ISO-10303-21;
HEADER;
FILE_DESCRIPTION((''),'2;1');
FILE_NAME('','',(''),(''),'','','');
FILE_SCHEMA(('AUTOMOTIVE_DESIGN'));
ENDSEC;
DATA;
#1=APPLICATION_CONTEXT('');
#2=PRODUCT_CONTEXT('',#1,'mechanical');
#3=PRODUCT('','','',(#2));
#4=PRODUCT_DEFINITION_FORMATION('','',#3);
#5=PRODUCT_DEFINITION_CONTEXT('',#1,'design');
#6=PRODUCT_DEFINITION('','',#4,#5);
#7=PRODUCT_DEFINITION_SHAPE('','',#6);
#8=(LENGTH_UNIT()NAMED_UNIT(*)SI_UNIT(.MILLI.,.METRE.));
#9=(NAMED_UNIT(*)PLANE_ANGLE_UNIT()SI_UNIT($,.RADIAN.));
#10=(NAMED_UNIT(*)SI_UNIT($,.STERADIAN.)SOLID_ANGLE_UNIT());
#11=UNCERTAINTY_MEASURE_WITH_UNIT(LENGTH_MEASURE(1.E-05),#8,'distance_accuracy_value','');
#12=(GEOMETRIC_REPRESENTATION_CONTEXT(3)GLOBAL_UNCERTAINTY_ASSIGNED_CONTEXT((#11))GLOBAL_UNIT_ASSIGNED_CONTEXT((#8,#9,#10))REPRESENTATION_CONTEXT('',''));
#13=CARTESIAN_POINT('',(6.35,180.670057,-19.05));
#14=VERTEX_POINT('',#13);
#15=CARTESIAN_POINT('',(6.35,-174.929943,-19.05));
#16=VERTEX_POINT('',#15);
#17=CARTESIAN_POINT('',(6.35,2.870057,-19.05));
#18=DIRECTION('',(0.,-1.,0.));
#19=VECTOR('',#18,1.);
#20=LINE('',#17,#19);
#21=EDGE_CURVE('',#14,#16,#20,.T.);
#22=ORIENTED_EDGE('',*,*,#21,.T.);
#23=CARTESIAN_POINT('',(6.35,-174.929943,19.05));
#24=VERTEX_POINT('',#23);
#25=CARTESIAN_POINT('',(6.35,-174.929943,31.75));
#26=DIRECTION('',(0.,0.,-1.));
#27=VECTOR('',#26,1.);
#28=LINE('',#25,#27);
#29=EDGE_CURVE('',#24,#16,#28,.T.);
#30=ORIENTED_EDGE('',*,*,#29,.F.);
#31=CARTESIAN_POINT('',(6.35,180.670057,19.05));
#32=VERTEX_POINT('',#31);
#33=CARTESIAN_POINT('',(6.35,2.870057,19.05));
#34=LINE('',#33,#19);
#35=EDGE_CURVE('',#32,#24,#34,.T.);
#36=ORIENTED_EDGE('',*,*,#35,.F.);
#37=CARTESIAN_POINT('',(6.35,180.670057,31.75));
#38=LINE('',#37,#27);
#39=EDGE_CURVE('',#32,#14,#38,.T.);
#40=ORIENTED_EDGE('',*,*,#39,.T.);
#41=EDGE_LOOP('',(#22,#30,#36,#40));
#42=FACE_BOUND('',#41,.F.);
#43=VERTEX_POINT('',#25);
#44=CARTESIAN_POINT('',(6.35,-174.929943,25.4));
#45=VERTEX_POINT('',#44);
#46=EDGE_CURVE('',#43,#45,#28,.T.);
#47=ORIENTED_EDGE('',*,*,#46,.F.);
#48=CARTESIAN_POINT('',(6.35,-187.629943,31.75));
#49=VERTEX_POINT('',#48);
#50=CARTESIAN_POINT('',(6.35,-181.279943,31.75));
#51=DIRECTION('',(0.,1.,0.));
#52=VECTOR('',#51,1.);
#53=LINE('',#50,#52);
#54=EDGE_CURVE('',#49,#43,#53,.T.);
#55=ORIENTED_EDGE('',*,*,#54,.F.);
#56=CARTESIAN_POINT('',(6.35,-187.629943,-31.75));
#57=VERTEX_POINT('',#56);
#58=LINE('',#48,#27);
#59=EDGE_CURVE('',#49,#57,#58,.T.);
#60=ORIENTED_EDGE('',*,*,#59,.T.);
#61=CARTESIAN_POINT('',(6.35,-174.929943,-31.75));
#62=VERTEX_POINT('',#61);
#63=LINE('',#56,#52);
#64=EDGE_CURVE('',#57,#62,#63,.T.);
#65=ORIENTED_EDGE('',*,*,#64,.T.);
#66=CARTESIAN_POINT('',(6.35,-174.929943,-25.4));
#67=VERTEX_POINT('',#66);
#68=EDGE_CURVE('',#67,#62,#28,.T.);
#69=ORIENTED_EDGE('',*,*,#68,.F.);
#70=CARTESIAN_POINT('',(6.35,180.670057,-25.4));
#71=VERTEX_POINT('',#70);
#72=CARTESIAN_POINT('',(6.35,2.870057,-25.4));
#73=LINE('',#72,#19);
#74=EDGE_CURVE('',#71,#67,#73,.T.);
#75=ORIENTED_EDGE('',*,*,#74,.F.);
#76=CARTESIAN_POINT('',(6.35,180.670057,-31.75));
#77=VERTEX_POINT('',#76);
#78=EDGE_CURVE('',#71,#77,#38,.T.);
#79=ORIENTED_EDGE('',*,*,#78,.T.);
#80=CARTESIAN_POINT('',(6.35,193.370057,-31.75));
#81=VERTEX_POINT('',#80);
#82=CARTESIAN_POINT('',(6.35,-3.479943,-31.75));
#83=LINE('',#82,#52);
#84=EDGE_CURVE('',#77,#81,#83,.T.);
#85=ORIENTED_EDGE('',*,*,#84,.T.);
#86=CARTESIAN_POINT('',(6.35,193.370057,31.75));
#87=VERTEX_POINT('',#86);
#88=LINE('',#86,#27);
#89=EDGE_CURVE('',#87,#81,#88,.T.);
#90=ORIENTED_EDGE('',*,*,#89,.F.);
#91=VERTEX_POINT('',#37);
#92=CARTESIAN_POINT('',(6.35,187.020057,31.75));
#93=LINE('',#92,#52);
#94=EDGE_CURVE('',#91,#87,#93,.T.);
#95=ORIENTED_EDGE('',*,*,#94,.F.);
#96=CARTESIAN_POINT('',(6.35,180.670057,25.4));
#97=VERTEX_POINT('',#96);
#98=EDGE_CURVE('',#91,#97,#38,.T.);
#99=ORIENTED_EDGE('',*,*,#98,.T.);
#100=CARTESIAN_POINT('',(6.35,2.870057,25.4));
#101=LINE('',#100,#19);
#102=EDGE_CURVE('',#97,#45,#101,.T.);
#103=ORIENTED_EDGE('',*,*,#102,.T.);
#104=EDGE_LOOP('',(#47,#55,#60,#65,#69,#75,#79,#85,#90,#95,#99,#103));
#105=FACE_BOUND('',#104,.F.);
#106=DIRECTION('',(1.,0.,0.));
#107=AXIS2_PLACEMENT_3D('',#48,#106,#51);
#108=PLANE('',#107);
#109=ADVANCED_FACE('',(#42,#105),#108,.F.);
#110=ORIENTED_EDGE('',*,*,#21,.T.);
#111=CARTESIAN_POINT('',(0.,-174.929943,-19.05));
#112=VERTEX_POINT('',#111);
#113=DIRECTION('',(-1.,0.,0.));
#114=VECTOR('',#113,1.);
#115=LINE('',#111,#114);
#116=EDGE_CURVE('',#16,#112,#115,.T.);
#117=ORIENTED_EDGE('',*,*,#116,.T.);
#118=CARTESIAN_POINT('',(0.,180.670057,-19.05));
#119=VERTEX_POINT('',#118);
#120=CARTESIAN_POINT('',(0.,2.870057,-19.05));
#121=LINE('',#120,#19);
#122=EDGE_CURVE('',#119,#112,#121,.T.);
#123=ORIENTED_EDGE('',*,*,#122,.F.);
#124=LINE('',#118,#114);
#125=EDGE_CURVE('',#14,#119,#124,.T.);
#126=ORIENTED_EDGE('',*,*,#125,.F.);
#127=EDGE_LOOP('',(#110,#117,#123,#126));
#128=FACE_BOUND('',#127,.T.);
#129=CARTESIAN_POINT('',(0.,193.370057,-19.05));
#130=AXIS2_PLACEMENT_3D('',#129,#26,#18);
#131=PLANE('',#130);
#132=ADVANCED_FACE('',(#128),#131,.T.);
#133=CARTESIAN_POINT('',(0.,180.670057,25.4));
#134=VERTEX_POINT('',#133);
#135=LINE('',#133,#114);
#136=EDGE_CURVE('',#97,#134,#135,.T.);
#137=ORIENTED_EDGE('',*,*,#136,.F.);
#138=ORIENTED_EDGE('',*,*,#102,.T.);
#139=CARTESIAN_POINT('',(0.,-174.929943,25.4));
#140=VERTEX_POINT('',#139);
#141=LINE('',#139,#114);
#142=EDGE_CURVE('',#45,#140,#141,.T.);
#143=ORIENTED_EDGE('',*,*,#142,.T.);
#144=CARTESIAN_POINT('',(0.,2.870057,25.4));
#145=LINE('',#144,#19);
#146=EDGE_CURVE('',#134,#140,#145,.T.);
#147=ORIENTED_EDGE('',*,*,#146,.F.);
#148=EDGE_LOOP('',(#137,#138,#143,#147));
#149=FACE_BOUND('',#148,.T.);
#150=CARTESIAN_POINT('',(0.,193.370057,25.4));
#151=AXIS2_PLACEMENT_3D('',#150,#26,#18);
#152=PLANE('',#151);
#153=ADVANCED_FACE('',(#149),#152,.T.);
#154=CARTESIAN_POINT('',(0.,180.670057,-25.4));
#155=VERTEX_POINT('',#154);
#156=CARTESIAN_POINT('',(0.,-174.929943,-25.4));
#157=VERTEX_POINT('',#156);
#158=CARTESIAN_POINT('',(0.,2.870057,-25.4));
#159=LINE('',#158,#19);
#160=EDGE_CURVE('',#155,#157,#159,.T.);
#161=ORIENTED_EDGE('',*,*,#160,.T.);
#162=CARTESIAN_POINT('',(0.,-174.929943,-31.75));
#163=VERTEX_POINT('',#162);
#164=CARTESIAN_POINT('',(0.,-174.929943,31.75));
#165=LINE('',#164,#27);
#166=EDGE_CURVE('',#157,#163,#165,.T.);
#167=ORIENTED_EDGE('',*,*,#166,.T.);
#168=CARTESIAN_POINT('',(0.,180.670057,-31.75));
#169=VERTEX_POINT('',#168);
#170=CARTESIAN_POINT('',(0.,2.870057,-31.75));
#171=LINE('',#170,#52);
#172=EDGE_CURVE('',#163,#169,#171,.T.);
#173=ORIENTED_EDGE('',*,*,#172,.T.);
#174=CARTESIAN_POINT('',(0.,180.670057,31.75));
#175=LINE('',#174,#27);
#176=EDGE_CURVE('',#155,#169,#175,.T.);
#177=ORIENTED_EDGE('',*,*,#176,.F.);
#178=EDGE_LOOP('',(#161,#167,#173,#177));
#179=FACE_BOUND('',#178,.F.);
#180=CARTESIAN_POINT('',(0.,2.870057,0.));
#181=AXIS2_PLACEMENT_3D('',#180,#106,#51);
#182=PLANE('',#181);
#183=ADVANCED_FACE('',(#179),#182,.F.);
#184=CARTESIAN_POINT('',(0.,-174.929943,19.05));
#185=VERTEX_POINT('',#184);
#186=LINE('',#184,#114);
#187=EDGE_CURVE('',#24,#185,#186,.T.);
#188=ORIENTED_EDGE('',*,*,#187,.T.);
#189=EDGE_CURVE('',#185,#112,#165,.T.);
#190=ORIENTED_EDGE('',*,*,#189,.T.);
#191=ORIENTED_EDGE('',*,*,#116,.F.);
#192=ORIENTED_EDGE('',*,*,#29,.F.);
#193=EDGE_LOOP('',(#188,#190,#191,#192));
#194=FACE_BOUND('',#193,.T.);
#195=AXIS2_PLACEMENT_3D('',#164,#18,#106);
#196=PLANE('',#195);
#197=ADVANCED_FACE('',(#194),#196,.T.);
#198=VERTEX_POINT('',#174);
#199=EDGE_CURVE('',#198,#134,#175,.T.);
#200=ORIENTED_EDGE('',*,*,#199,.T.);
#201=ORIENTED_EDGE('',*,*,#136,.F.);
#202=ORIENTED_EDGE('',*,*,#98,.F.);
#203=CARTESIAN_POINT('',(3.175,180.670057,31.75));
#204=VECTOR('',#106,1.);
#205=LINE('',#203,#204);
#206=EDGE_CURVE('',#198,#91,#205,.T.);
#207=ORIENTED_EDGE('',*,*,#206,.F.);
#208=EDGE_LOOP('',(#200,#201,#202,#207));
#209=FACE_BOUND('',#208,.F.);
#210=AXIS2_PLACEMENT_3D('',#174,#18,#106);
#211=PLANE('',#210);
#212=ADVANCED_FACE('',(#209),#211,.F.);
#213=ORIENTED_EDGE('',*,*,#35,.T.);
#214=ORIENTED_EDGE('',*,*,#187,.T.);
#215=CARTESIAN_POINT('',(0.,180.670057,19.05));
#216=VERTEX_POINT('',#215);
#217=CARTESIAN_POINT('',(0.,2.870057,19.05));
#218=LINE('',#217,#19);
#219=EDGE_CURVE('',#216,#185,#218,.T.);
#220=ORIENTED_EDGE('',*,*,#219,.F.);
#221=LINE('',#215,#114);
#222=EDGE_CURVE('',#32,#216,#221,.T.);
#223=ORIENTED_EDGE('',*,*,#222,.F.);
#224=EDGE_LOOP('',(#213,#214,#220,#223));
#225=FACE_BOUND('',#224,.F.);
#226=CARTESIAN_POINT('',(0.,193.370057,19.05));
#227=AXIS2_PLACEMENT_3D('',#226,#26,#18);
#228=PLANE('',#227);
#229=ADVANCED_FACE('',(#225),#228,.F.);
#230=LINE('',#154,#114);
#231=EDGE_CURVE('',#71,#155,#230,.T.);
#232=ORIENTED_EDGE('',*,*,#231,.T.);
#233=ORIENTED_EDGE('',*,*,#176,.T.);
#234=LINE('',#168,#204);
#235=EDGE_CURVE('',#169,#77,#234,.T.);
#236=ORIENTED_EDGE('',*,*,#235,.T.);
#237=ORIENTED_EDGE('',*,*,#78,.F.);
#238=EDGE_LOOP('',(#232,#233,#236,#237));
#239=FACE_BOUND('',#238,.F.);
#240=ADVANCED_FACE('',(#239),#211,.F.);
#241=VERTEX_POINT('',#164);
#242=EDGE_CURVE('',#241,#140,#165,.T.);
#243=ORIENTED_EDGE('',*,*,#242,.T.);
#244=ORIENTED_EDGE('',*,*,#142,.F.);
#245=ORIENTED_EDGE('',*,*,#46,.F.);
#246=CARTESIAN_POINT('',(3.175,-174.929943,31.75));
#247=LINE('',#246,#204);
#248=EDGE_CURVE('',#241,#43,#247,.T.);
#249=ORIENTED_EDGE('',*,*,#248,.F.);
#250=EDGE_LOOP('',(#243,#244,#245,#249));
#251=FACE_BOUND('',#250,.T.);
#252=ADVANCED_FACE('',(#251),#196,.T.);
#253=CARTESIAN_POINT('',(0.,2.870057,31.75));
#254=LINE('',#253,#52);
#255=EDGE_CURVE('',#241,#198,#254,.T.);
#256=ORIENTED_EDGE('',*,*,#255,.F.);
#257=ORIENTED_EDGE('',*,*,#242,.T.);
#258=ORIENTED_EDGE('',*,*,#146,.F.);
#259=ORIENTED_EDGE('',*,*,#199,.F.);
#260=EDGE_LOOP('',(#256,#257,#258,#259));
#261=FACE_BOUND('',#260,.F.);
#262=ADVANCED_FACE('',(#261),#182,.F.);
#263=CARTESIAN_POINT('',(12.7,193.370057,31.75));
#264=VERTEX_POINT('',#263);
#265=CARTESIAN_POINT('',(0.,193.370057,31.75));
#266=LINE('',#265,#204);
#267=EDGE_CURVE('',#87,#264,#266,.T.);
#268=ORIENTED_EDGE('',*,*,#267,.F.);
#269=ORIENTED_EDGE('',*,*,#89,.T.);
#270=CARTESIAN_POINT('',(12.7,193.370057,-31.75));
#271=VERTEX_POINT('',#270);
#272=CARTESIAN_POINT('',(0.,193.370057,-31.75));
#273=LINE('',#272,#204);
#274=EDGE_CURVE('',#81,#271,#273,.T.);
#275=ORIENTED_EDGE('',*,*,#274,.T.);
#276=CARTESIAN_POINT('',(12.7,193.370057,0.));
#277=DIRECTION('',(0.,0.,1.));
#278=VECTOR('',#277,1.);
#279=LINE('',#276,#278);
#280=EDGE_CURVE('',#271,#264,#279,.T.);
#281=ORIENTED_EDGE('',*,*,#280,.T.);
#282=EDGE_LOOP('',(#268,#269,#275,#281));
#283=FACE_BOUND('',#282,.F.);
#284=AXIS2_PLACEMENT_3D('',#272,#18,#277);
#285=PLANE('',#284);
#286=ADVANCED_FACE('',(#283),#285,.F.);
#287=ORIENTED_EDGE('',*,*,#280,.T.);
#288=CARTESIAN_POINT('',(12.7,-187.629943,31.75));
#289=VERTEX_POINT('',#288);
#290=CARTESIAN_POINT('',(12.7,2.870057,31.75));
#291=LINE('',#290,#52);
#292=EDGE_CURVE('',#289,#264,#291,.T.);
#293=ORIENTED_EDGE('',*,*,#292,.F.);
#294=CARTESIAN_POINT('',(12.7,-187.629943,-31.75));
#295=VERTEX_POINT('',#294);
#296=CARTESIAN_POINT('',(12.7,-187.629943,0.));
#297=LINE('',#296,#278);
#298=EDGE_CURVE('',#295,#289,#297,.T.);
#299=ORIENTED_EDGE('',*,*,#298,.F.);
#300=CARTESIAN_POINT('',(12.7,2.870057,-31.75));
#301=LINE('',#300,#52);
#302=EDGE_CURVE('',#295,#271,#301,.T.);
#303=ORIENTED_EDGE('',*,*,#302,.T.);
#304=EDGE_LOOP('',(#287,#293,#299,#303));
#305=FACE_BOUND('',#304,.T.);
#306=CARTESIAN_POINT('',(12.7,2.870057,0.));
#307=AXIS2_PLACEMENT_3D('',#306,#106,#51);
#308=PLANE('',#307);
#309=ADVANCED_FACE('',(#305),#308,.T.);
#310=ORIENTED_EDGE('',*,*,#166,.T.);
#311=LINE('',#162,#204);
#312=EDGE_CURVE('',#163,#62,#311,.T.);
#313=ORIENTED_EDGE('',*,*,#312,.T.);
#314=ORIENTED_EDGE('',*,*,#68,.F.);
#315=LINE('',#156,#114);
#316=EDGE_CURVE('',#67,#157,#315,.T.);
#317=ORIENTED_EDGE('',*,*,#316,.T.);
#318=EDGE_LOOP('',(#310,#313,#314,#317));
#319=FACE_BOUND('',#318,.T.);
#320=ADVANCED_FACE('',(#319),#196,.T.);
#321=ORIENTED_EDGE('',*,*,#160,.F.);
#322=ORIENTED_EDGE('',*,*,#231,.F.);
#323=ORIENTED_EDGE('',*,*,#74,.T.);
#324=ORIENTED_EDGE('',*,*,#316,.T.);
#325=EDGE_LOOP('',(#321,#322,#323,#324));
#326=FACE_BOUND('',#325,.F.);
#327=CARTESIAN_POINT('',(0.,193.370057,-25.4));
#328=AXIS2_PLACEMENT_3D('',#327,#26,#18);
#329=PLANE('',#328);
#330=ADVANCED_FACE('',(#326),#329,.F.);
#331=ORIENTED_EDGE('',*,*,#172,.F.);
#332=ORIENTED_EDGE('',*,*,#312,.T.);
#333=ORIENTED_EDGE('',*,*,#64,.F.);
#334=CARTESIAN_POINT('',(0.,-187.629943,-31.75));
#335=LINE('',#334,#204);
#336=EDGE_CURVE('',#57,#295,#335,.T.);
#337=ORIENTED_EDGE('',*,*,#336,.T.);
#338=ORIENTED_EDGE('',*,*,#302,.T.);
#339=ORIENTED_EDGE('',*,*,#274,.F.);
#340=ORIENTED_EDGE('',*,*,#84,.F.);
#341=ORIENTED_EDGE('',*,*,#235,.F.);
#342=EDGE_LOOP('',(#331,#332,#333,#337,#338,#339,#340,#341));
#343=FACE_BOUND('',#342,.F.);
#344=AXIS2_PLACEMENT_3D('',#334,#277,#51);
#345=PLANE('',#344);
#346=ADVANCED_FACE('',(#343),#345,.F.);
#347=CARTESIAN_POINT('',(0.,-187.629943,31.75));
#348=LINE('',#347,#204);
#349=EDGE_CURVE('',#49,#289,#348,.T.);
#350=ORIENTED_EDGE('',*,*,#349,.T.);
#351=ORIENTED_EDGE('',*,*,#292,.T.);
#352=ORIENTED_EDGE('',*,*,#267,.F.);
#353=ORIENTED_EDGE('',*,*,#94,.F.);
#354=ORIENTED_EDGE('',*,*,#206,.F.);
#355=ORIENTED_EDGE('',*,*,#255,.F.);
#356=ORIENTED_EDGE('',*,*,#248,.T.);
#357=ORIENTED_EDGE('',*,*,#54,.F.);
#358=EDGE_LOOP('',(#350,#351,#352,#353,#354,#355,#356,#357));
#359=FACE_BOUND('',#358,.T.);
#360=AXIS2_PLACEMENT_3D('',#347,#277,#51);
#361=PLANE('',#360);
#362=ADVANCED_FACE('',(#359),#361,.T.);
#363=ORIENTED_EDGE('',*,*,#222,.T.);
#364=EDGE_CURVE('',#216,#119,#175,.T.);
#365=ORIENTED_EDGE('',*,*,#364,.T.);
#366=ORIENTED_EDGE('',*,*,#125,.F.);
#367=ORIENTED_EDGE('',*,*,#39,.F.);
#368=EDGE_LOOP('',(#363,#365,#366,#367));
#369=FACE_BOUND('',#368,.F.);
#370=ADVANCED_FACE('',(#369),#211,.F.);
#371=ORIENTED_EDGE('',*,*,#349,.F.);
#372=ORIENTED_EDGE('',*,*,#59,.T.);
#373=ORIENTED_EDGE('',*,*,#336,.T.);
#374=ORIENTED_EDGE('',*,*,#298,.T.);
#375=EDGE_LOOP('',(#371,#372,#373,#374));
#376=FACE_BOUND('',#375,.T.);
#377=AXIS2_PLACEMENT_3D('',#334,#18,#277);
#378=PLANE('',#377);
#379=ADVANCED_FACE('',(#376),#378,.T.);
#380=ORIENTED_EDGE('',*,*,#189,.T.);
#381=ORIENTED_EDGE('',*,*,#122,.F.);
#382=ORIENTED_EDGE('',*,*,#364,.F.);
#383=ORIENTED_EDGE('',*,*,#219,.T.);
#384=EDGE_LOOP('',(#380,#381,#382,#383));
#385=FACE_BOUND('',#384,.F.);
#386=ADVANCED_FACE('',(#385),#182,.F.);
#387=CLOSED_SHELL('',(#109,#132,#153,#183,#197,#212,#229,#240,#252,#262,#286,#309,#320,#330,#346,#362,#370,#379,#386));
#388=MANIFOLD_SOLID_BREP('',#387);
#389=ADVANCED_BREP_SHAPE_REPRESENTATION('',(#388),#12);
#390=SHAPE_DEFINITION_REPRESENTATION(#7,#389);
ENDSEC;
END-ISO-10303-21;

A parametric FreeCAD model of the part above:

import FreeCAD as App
import Part
import Sketcher
from FreeCAD import Vector
Q = App.Units.Quantity


def add_polygon(sketch, points):
    """Adds a closed chain of lines whose ends are joined by coincident constraints."""
    first, n = sketch.GeometryCount, len(points)
    for a, b in zip(points, points[1:] + points[:1]):
        sketch.addGeometry(Part.LineSegment(App.Vector(*a, 0), App.Vector(*b, 0)), False)
    for i in range(n):
        sketch.addConstraint(Sketcher.Constraint("Coincident", first + i, 2, first + (i + 1) % n, 1))

doc = App.newDocument("Part")
params = doc.addObject("Spreadsheet::Sheet", "Params")
for row, (alias, value) in enumerate([
    ("sketch1_width", "15 in"),
    ("sketch1_height", "2.5 in"),
    ("pad1_length", "0.5 in"),
    ("sketch2_width", "15 in"),
    ("sketch2_height", "0.25 in"),
    ("pocket1_length", "0.25 in"),
    ("sketch3_height", "0.5 in"),
    ("sketch3_width", "0.25 in"),
], start=1):
    params.set(f"A{row}", alias)
    params.set(f"B{row}", "=" + value)
    params.setAlias(f"B{row}", alias)

body = doc.addObject("PartDesign::Body", "Body")

sketch1 = body.newObject("Sketcher::SketchObject", "Sketch")
sketch1.AttachmentSupport = (doc.getObject("YZ_Plane"), [""])
sketch1.MapMode = "FlatFace"
add_polygon(sketch1, [(-187.629943, 31.75), (-187.629943, -31.75), (193.370057, -31.75), (193.370057, 31.75)])
sketch1.addConstraint(Sketcher.Constraint("Vertical", 0))
sketch1.addConstraint(Sketcher.Constraint("Horizontal", 1))
sketch1.addConstraint(Sketcher.Constraint("Vertical", 2))
sketch1.addConstraint(Sketcher.Constraint("Horizontal", 3))
sketch1.addConstraint(Sketcher.Constraint("DistanceX", 1, 1, 1, 2, Q("15 in")))
sketch1.addConstraint(Sketcher.Constraint("DistanceY", 0, 2, 0, 1, Q("2.5 in")))
sketch1.addConstraint(Sketcher.Constraint("DistanceY", 0, 2, -1, 1, Q("1.25 in")))
sketch1.addConstraint(Sketcher.Constraint("DistanceX", 0, 2, -1, 1, Q("187.629943 mm")))
sketch1.setExpression("Constraints[8]", "Params.sketch1_width")
sketch1.setExpression("Constraints[9]", "Params.sketch1_height")
pad1 = body.newObject("PartDesign::Pad", "Pad")
pad1.Profile = sketch1
pad1.setExpression("Length", "Params.pad1_length")

sketch2 = body.newObject("Sketcher::SketchObject", "Sketch001")
sketch2.AttachmentSupport = (doc.getObject("YZ_Plane"), [""])
sketch2.MapMode = "FlatFace"
add_polygon(sketch2, [(193.370057, 25.4), (193.370057, 19.05), (-187.629943, 19.05), (-187.629943, 25.4)])
add_polygon(sketch2, [(193.370057, -19.05), (193.370057, -25.4), (-187.629943, -25.4), (-187.629943, -19.05)])
sketch2.addConstraint(Sketcher.Constraint("Vertical", 0))
sketch2.addConstraint(Sketcher.Constraint("Horizontal", 1))
sketch2.addConstraint(Sketcher.Constraint("Vertical", 2))
sketch2.addConstraint(Sketcher.Constraint("Horizontal", 3))
sketch2.addConstraint(Sketcher.Constraint("Vertical", 4))
sketch2.addConstraint(Sketcher.Constraint("Horizontal", 5))
sketch2.addConstraint(Sketcher.Constraint("Vertical", 6))
sketch2.addConstraint(Sketcher.Constraint("Horizontal", 7))
sketch2.addConstraint(Sketcher.Constraint("Symmetric", 3, 2, 4, 2, -1))
sketch2.addConstraint(Sketcher.Constraint("Symmetric", 1, 2, 6, 2, -1))
sketch2.addConstraint(Sketcher.Constraint("DistanceX", 1, 2, 1, 1, Q("15 in")))
sketch2.addConstraint(Sketcher.Constraint("DistanceY", -1, 1, 2, 2, Q("1 in")))
sketch2.addConstraint(Sketcher.Constraint("DistanceY", 0, 2, 0, 1, Q("0.25 in")))
sketch2.addConstraint(Sketcher.Constraint("DistanceX", -1, 1, 0, 2, Q("193.370057 mm")))
sketch2.setExpression("Constraints[18]", "Params.sketch2_width")
sketch2.setExpression("Constraints[20]", "Params.sketch2_height")
pocket1 = body.newObject("PartDesign::Pocket", "Pocket")
pocket1.Profile = sketch2
pocket1.setExpression("Length", "Params.pocket1_length")
pocket1.Reversed = True

sketch3 = body.newObject("Sketcher::SketchObject", "Sketch002")
sketch3.AttachmentSupport = (doc.getObject("XY_Plane"), [""])
sketch3.MapMode = "FlatFace"
sketch3.AttachmentOffset = App.Placement(Vector(0, 0, 1.25 * 25.4), App.Rotation())
add_polygon(sketch3, [(0, 193.370057), (0, 180.670057), (6.35, 180.670057), (6.35, 193.370057)])
add_polygon(sketch3, [(0, -174.929943), (0, -187.629943), (6.35, -187.629943), (6.35, -174.929943)])
sketch3.addConstraint(Sketcher.Constraint("Vertical", 0))
sketch3.addConstraint(Sketcher.Constraint("Horizontal", 1))
sketch3.addConstraint(Sketcher.Constraint("Vertical", 2))
sketch3.addConstraint(Sketcher.Constraint("Horizontal", 3))
sketch3.addConstraint(Sketcher.Constraint("Vertical", 4))
sketch3.addConstraint(Sketcher.Constraint("Horizontal", 5))
sketch3.addConstraint(Sketcher.Constraint("Vertical", 6))
sketch3.addConstraint(Sketcher.Constraint("Horizontal", 7))
sketch3.addConstraint(Sketcher.Constraint("PointOnObject", 0, 2, -2))
sketch3.addConstraint(Sketcher.Constraint("PointOnObject", 4, 2, -2))
sketch3.addConstraint(Sketcher.Constraint("Vertical", 2, 2, 5, 2))
sketch3.addConstraint(Sketcher.Constraint("Equal", 2, 4))
sketch3.addConstraint(Sketcher.Constraint("DistanceY", 0, 2, 0, 1, Q("0.5 in")))
sketch3.addConstraint(Sketcher.Constraint("DistanceY", 4, 2, 3, 2, Q("15 in")))
sketch3.addConstraint(Sketcher.Constraint("DistanceX", 1, 1, 1, 2, Q("0.25 in")))
sketch3.addConstraint(Sketcher.Constraint("DistanceY", -1, 1, 0, 2, Q("180.670057 mm")))
sketch3.setExpression("Constraints[20]", "Params.sketch3_height")
sketch3.setExpression("Constraints[22]", "Params.sketch3_width")
pocket2 = body.newObject("PartDesign::Pocket", "Pocket001")
pocket2.Profile = sketch3
pocket2.Type = "ThroughAll"

doc.recompute()
